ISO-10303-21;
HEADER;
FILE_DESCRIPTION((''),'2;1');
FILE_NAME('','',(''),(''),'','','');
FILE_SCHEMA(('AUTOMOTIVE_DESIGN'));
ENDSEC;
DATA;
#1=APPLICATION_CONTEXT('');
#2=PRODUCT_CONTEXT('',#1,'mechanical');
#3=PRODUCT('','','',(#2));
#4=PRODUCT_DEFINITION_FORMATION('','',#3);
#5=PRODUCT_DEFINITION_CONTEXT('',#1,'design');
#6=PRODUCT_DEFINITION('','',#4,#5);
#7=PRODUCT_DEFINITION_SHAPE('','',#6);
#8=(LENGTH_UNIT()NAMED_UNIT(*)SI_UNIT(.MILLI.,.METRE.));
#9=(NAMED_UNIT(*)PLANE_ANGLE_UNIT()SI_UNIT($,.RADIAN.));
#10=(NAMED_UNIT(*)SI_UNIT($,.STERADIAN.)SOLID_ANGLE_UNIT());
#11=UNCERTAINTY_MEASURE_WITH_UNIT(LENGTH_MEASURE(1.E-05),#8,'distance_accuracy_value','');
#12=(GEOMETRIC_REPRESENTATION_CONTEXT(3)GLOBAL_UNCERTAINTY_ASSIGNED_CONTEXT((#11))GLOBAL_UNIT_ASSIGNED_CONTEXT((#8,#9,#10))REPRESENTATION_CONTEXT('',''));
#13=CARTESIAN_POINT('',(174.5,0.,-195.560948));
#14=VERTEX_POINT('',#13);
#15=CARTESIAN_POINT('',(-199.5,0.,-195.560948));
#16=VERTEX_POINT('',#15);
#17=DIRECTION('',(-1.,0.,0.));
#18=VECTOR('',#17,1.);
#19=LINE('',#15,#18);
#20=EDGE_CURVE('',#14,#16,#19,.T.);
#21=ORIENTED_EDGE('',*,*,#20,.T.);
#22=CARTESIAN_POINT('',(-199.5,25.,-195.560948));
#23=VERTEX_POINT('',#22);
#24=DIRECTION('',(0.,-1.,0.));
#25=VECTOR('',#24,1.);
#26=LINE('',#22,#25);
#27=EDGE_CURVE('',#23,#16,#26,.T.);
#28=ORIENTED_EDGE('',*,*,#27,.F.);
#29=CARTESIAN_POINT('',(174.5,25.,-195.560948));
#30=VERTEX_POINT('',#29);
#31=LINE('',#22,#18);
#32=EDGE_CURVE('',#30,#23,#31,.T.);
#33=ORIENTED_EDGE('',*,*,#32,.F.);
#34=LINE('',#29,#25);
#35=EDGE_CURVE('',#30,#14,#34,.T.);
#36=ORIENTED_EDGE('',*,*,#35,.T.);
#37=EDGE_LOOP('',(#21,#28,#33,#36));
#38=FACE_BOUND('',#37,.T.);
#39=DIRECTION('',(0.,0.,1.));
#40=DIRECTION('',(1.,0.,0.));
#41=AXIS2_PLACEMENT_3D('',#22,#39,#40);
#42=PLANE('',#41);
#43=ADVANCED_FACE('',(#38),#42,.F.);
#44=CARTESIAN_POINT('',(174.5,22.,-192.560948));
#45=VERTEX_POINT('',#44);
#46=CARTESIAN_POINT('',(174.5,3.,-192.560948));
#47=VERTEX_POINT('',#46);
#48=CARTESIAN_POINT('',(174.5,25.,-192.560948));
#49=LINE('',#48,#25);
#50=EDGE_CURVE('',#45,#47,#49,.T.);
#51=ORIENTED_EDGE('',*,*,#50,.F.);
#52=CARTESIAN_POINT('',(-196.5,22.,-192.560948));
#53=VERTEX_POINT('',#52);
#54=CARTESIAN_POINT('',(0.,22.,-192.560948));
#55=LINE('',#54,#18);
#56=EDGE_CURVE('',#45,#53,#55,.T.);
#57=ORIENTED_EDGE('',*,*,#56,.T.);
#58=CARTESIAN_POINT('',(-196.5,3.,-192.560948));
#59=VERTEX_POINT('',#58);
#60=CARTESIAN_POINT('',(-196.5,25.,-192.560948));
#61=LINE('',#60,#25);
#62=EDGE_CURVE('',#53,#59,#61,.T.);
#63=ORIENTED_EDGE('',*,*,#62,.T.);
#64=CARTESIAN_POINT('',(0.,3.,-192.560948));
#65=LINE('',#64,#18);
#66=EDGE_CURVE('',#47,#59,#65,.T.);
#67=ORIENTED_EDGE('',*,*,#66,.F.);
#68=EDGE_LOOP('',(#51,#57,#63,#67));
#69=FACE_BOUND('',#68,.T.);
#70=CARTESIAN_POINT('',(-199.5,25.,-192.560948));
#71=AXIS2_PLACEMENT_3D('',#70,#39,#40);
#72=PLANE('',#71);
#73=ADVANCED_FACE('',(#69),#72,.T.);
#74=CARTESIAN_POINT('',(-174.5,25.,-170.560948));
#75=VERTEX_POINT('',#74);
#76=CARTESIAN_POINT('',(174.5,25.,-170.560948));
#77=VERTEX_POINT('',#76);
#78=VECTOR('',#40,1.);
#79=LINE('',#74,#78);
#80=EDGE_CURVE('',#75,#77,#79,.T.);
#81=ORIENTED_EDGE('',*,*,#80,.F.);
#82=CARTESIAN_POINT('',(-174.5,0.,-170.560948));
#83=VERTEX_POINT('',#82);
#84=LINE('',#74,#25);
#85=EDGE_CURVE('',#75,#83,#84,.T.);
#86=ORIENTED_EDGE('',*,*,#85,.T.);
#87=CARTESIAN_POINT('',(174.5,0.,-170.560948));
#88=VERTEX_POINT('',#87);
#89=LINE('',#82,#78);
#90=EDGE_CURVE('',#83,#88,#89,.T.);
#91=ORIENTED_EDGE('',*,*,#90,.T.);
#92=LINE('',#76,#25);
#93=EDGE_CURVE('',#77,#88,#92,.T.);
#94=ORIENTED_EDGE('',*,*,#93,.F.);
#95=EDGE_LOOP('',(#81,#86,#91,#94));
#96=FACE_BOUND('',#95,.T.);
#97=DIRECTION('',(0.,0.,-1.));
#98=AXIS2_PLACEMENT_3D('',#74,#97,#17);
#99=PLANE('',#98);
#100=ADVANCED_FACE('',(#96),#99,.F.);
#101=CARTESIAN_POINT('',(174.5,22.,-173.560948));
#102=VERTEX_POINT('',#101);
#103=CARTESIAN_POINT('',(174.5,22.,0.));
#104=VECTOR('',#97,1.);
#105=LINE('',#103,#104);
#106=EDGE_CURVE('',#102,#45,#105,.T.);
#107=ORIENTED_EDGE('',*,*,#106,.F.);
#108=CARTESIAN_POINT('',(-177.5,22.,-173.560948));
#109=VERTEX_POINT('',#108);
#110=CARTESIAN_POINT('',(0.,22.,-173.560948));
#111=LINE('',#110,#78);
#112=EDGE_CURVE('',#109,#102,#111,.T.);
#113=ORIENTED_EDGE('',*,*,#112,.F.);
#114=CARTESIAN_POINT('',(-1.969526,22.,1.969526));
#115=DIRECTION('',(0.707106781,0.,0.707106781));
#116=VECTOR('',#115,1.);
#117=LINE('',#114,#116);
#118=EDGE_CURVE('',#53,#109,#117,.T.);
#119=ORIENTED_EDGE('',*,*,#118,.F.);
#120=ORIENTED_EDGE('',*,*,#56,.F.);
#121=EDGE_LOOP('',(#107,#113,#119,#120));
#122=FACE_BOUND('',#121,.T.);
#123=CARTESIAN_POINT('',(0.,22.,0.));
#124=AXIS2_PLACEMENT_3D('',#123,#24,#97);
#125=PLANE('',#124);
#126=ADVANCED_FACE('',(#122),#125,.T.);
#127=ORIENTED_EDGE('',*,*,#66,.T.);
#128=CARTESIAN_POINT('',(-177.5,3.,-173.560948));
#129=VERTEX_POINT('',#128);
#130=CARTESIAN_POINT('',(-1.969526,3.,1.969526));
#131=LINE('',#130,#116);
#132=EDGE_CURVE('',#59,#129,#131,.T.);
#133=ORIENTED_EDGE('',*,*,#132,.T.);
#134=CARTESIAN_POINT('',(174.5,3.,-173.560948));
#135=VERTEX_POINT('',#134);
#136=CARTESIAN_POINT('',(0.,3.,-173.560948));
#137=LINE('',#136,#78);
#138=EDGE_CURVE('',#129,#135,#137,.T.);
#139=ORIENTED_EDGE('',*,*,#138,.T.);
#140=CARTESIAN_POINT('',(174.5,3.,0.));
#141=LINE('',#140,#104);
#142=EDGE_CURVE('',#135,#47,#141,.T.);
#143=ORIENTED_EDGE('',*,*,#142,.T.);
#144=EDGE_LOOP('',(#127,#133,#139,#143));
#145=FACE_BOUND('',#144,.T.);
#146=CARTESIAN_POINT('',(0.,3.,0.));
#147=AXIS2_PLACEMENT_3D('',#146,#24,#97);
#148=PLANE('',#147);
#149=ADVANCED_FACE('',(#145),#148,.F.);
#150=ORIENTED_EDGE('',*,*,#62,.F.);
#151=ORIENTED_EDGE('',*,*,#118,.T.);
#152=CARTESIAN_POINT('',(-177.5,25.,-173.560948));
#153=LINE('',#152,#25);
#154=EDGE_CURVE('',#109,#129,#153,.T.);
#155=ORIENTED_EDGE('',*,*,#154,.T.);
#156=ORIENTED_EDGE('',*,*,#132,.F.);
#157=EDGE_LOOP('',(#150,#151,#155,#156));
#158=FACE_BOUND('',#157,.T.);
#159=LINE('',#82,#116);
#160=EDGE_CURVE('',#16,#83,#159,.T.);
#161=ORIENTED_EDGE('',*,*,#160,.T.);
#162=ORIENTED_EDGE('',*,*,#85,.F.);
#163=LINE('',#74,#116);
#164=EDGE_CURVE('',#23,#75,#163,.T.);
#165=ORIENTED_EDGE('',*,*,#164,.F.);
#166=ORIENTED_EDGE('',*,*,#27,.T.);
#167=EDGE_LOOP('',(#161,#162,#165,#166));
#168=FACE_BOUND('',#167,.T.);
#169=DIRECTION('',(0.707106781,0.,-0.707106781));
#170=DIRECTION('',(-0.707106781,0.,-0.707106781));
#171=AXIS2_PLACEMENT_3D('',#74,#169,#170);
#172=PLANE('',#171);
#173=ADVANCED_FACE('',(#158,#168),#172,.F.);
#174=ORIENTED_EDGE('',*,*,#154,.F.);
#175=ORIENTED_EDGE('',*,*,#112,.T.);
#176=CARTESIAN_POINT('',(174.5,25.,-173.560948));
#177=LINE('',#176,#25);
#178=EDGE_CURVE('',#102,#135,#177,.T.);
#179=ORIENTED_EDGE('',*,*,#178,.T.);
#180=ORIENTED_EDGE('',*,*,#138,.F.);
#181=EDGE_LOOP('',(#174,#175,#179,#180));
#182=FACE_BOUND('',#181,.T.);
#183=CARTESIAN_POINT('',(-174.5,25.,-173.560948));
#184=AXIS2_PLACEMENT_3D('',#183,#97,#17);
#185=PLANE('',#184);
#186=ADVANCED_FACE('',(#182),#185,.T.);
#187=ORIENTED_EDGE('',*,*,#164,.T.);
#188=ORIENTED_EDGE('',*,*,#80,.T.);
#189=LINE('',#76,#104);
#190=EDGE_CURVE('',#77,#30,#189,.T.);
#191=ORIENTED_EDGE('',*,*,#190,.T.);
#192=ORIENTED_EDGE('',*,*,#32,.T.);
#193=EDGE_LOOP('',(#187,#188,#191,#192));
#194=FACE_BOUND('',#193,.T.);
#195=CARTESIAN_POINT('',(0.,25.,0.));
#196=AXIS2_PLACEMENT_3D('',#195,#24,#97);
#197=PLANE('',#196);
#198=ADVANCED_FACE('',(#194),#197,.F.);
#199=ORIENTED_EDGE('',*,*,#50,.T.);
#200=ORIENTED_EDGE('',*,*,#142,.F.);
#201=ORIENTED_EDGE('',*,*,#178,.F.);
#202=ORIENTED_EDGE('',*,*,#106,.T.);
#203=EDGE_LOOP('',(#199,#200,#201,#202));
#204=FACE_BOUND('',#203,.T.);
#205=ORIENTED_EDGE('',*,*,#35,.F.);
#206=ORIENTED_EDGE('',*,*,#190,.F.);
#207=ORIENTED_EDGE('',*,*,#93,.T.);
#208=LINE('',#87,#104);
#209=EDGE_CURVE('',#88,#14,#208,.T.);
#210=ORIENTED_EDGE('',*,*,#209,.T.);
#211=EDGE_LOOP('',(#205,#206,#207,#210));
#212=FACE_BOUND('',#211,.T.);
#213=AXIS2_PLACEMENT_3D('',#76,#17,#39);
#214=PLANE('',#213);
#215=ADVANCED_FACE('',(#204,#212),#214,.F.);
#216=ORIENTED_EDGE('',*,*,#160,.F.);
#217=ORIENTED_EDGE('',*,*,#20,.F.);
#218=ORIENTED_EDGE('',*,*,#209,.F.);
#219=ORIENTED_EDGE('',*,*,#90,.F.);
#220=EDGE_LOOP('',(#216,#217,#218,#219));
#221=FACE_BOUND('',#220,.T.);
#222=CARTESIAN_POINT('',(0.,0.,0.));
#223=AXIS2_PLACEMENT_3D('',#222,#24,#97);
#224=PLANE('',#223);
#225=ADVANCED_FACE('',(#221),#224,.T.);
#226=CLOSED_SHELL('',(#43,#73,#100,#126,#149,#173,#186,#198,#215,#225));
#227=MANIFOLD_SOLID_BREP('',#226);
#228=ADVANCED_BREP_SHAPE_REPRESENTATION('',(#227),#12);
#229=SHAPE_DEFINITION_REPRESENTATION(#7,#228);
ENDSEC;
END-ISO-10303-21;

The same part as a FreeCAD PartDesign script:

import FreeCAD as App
import Part
import Sketcher


def faces_at(feature, points):
    """Names of the faces that lie closest to the given points."""
    faces = feature.Shape.Faces
    near = lambda p: min(range(len(faces)), key=lambda i: faces[i].distToShape(Part.Vertex(*p))[0])
    return sorted({f"Face{near(p) + 1}" for p in points})

doc = App.newDocument("Part")
params = doc.addObject("Spreadsheet::Sheet", "Params")
for row, (alias, value) in enumerate([
    ("sketch1_width", "349 mm"),
    ("sketch1_width2", "374 mm"),
    ("sketch1_height", "25 mm"),
    ("pad1_length", "25 mm"),
    ("thickness_wall", "3 mm"),
], start=1):
    params.set(f"A{row}", alias)
    params.set(f"B{row}", "=" + value)
    params.setAlias(f"B{row}", alias)

body = doc.addObject("PartDesign::Body", "Body")

sketch1 = doc.addObject("Sketcher::SketchObject", "Sketch")
body.addObject(sketch1)
sketch1.AttachmentSupport = (doc.XZ_Plane, [""])
sketch1.MapMode = "FlatFace"
sketch1.addGeometry([
    Part.LineSegment(App.Vector(-174.5, -170.560948, 0), App.Vector(174.5, -170.560948, 0)),
    Part.LineSegment(App.Vector(174.5, -170.560948, 0), App.Vector(174.5, -195.560948, 0)),
    Part.LineSegment(App.Vector(174.5, -195.560948, 0), App.Vector(-199.5, -195.560948, 0)),
    Part.LineSegment(App.Vector(-199.5, -195.560948, 0), App.Vector(-174.5, -170.560948, 0)),
], False)
sketch1.addConstraint([
    Sketcher.Constraint("Coincident", 0, 2, 1, 1),
    Sketcher.Constraint("Coincident", 1, 2, 2, 1),
    Sketcher.Constraint("Coincident", 2, 2, 3, 1),
    Sketcher.Constraint("Coincident", 3, 2, 0, 1),
    Sketcher.Constraint("Horizontal", 0),
    Sketcher.Constraint("Vertical", 1),
    Sketcher.Constraint("Horizontal", 2),
    Sketcher.Constraint("DistanceX", 0, 1, 0, 2, 349.0),
    Sketcher.Constraint("DistanceX", 2, 2, 2, 1, 374.0),
    Sketcher.Constraint("DistanceY", 1, 2, 1, 1, 25.0),
    Sketcher.Constraint("DistanceX", -1, 1, 0, 2, 174.5),
    Sketcher.Constraint("DistanceY", 0, 2, -1, 1, 170.560948),
])
sketch1.setExpression("Constraints[7]", "Params.sketch1_width")
sketch1.setExpression("Constraints[8]", "Params.sketch1_width2")
sketch1.setExpression("Constraints[9]", "Params.sketch1_height")
pad1 = doc.addObject("PartDesign::Pad", "Pad")
body.addObject(pad1)
pad1.Profile = sketch1
pad1.setExpression("Length", "Params.pad1_length")
pad1.Reversed = True
doc.recompute()

thickness = doc.addObject("PartDesign::Thickness", "Thickness")
body.addObject(thickness)
thickness.Base = (pad1, faces_at(pad1, [(174.5, 12.5, -183.061), (-187, 12.5, -183.061)]))
thickness.setExpression("Value", "Params.thickness_wall")
thickness.Reversed = True
thickness.Join = "Intersection"

doc.recompute()
